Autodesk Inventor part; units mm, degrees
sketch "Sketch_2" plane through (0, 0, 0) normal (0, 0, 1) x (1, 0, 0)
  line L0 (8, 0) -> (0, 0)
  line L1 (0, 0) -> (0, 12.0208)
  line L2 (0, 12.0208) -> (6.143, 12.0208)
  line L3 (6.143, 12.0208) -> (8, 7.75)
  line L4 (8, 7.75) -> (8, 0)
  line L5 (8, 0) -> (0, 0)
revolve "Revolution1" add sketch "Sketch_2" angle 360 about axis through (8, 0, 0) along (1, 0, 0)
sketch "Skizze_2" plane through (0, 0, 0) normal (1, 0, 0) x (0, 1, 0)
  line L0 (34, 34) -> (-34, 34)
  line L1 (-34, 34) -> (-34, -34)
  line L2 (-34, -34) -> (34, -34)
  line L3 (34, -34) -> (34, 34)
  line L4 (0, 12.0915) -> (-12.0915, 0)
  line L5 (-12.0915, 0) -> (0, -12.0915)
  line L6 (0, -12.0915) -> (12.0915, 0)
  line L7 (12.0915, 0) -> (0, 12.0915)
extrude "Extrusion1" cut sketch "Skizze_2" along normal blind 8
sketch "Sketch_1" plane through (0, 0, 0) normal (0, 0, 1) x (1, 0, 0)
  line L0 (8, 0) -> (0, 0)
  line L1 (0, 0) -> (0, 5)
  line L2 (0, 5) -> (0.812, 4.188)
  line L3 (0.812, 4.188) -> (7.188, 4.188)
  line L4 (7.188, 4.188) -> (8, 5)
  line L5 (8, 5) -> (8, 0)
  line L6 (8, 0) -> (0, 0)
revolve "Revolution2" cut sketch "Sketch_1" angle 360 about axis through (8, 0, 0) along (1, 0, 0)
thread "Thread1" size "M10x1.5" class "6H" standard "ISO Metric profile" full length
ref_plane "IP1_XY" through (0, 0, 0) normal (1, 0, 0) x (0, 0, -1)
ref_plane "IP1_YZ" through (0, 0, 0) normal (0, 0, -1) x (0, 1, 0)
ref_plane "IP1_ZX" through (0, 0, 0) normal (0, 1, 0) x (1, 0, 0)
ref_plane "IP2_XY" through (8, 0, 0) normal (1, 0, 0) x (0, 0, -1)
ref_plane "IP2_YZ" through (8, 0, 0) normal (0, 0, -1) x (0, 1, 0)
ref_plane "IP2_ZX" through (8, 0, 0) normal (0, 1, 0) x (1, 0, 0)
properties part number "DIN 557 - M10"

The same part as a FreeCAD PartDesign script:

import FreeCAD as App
import Part
import Sketcher

V = App.Vector
Q = App.Units.Quantity


def add_polygon(sketch, points):
    """Adds a closed chain of lines whose ends are joined by coincident constraints."""
    first, n = sketch.GeometryCount, len(points)
    for a, b in zip(points, points[1:] + points[:1]):
        sketch.addGeometry(Part.LineSegment(App.Vector(*a, 0), App.Vector(*b, 0)), False)
    for i in range(n):
        sketch.addConstraint(Sketcher.Constraint("Coincident", first + i, 2, first + (i + 1) % n, 1))

doc = App.newDocument("Part")
body = doc.addObject("PartDesign::Body", "Body")

sketch1 = body.newObject("Sketcher::SketchObject", "Sketch")
sketch1.AttachmentSupport = (doc.getObject("XY_Plane"), [""])
sketch1.MapMode = "FlatFace"
add_polygon(sketch1, [(0, 0), (8, 0), (8, 7.8), (6.1, 12), (0, 12)])
sketch1.addConstraint(Sketcher.Constraint("Horizontal", 0))
sketch1.addConstraint(Sketcher.Constraint("Vertical", 1))
sketch1.addConstraint(Sketcher.Constraint("Horizontal", 3))
sketch1.addConstraint(Sketcher.Constraint("Vertical", 4))
sketch1.addConstraint(Sketcher.Constraint("Coincident", 4, 2, -1, 1))
sketch1.addConstraint(Sketcher.Constraint("DistanceX", 0, 1, 0, 2, Q("8 mm")))
sketch1.addConstraint(Sketcher.Constraint("Angle", 2, Q("113.5 deg")))
sketch1.addConstraint(Sketcher.Constraint("DistanceY", 1, 1, 1, 2, Q("7.75 mm")))
sketch1.addConstraint(Sketcher.Constraint("DistanceX", 3, 2, 3, 1, Q("6.143 mm")))
revolution = body.newObject("PartDesign::Revolution", "Revolution")
revolution.Profile = sketch1
revolution.ReferenceAxis = (sketch1, ["H_Axis"])
revolution.Angle = 360

sketch2 = body.newObject("Sketcher::SketchObject", "Sketch001")
sketch2.AttachmentSupport = (doc.getObject("YZ_Plane"), [""])
sketch2.MapMode = "FlatFace"
add_polygon(sketch2, [(34, -34), (34, 34), (-34, 34), (-34, -34)])
add_polygon(sketch2, [(-12, 0), (0, 12), (12, 0), (0, -12)])
sketch2.addConstraint(Sketcher.Constraint("Vertical", 0))
sketch2.addConstraint(Sketcher.Constraint("Horizontal", 1))
sketch2.addConstraint(Sketcher.Constraint("Vertical", 2))
sketch2.addConstraint(Sketcher.Constraint("Horizontal", 3))
sketch2.addConstraint(Sketcher.Constraint("Symmetric", 0, 2, 2, 2, -1, 1))
sketch2.addConstraint(Sketcher.Constraint("Symmetric", 4, 2, 6, 2, -1, 1))
sketch2.addConstraint(Sketcher.Constraint("Symmetric", 5, 2, 7, 2, -1, 1))
sketch2.addConstraint(Sketcher.Constraint("PointOnObject", 4, 2, -2))
sketch2.addConstraint(Sketcher.Constraint("PointOnObject", 5, 2, -1))
sketch2.addConstraint(Sketcher.Constraint("Perpendicular", 4, 5))
sketch2.addConstraint(Sketcher.Constraint("Equal", 3, 0))
sketch2.addConstraint(Sketcher.Constraint("DistanceX", 1, 2, 1, 1, Q("68 mm")))
sketch2.addConstraint(Sketcher.Constraint("Distance", 4, Q("17.1 mm")))
pocket1 = body.newObject("PartDesign::Pocket", "Pocket")
pocket1.Profile = sketch2
pocket1.Length = 8
pocket1.Reversed = True

sketch3 = body.newObject("Sketcher::SketchObject", "Sketch002")
sketch3.AttachmentSupport = (doc.getObject("XY_Plane"), [""])
sketch3.MapMode = "FlatFace"
add_polygon(sketch3, [(0, 0), (8, 0), (8, 5), (7.2, 4.2), (0.8, 4.2), (0, 5)])
sketch3.addConstraint(Sketcher.Constraint("Horizontal", 0))
sketch3.addConstraint(Sketcher.Constraint("Vertical", 1))
sketch3.addConstraint(Sketcher.Constraint("Horizontal", 3))
sketch3.addConstraint(Sketcher.Constraint("Vertical", 5))
sketch3.addConstraint(Sketcher.Constraint("Coincident", 5, 2, -1, 1))
sketch3.addConstraint(Sketcher.Constraint("Perpendicular", 2, 4))
sketch3.addConstraint(Sketcher.Constraint("Horizontal", 1, 2, 4, 2))
sketch3.addConstraint(Sketcher.Constraint("Equal", 2, 4))
sketch3.addConstraint(Sketcher.Constraint("DistanceX", 0, 1, 0, 2, Q("8 mm")))
sketch3.addConstraint(Sketcher.Constraint("DistanceY", 1, 1, 1, 2, Q("5 mm")))
sketch3.addConstraint(Sketcher.Constraint("DistanceX", 3, 2, 3, 1, Q("6.376 mm")))
groove = body.newObject("PartDesign::Groove", "Groove")
groove.Profile = sketch3
groove.ReferenceAxis = (sketch3, ["H_Axis"])
groove.Angle = 360

doc.recompute()
